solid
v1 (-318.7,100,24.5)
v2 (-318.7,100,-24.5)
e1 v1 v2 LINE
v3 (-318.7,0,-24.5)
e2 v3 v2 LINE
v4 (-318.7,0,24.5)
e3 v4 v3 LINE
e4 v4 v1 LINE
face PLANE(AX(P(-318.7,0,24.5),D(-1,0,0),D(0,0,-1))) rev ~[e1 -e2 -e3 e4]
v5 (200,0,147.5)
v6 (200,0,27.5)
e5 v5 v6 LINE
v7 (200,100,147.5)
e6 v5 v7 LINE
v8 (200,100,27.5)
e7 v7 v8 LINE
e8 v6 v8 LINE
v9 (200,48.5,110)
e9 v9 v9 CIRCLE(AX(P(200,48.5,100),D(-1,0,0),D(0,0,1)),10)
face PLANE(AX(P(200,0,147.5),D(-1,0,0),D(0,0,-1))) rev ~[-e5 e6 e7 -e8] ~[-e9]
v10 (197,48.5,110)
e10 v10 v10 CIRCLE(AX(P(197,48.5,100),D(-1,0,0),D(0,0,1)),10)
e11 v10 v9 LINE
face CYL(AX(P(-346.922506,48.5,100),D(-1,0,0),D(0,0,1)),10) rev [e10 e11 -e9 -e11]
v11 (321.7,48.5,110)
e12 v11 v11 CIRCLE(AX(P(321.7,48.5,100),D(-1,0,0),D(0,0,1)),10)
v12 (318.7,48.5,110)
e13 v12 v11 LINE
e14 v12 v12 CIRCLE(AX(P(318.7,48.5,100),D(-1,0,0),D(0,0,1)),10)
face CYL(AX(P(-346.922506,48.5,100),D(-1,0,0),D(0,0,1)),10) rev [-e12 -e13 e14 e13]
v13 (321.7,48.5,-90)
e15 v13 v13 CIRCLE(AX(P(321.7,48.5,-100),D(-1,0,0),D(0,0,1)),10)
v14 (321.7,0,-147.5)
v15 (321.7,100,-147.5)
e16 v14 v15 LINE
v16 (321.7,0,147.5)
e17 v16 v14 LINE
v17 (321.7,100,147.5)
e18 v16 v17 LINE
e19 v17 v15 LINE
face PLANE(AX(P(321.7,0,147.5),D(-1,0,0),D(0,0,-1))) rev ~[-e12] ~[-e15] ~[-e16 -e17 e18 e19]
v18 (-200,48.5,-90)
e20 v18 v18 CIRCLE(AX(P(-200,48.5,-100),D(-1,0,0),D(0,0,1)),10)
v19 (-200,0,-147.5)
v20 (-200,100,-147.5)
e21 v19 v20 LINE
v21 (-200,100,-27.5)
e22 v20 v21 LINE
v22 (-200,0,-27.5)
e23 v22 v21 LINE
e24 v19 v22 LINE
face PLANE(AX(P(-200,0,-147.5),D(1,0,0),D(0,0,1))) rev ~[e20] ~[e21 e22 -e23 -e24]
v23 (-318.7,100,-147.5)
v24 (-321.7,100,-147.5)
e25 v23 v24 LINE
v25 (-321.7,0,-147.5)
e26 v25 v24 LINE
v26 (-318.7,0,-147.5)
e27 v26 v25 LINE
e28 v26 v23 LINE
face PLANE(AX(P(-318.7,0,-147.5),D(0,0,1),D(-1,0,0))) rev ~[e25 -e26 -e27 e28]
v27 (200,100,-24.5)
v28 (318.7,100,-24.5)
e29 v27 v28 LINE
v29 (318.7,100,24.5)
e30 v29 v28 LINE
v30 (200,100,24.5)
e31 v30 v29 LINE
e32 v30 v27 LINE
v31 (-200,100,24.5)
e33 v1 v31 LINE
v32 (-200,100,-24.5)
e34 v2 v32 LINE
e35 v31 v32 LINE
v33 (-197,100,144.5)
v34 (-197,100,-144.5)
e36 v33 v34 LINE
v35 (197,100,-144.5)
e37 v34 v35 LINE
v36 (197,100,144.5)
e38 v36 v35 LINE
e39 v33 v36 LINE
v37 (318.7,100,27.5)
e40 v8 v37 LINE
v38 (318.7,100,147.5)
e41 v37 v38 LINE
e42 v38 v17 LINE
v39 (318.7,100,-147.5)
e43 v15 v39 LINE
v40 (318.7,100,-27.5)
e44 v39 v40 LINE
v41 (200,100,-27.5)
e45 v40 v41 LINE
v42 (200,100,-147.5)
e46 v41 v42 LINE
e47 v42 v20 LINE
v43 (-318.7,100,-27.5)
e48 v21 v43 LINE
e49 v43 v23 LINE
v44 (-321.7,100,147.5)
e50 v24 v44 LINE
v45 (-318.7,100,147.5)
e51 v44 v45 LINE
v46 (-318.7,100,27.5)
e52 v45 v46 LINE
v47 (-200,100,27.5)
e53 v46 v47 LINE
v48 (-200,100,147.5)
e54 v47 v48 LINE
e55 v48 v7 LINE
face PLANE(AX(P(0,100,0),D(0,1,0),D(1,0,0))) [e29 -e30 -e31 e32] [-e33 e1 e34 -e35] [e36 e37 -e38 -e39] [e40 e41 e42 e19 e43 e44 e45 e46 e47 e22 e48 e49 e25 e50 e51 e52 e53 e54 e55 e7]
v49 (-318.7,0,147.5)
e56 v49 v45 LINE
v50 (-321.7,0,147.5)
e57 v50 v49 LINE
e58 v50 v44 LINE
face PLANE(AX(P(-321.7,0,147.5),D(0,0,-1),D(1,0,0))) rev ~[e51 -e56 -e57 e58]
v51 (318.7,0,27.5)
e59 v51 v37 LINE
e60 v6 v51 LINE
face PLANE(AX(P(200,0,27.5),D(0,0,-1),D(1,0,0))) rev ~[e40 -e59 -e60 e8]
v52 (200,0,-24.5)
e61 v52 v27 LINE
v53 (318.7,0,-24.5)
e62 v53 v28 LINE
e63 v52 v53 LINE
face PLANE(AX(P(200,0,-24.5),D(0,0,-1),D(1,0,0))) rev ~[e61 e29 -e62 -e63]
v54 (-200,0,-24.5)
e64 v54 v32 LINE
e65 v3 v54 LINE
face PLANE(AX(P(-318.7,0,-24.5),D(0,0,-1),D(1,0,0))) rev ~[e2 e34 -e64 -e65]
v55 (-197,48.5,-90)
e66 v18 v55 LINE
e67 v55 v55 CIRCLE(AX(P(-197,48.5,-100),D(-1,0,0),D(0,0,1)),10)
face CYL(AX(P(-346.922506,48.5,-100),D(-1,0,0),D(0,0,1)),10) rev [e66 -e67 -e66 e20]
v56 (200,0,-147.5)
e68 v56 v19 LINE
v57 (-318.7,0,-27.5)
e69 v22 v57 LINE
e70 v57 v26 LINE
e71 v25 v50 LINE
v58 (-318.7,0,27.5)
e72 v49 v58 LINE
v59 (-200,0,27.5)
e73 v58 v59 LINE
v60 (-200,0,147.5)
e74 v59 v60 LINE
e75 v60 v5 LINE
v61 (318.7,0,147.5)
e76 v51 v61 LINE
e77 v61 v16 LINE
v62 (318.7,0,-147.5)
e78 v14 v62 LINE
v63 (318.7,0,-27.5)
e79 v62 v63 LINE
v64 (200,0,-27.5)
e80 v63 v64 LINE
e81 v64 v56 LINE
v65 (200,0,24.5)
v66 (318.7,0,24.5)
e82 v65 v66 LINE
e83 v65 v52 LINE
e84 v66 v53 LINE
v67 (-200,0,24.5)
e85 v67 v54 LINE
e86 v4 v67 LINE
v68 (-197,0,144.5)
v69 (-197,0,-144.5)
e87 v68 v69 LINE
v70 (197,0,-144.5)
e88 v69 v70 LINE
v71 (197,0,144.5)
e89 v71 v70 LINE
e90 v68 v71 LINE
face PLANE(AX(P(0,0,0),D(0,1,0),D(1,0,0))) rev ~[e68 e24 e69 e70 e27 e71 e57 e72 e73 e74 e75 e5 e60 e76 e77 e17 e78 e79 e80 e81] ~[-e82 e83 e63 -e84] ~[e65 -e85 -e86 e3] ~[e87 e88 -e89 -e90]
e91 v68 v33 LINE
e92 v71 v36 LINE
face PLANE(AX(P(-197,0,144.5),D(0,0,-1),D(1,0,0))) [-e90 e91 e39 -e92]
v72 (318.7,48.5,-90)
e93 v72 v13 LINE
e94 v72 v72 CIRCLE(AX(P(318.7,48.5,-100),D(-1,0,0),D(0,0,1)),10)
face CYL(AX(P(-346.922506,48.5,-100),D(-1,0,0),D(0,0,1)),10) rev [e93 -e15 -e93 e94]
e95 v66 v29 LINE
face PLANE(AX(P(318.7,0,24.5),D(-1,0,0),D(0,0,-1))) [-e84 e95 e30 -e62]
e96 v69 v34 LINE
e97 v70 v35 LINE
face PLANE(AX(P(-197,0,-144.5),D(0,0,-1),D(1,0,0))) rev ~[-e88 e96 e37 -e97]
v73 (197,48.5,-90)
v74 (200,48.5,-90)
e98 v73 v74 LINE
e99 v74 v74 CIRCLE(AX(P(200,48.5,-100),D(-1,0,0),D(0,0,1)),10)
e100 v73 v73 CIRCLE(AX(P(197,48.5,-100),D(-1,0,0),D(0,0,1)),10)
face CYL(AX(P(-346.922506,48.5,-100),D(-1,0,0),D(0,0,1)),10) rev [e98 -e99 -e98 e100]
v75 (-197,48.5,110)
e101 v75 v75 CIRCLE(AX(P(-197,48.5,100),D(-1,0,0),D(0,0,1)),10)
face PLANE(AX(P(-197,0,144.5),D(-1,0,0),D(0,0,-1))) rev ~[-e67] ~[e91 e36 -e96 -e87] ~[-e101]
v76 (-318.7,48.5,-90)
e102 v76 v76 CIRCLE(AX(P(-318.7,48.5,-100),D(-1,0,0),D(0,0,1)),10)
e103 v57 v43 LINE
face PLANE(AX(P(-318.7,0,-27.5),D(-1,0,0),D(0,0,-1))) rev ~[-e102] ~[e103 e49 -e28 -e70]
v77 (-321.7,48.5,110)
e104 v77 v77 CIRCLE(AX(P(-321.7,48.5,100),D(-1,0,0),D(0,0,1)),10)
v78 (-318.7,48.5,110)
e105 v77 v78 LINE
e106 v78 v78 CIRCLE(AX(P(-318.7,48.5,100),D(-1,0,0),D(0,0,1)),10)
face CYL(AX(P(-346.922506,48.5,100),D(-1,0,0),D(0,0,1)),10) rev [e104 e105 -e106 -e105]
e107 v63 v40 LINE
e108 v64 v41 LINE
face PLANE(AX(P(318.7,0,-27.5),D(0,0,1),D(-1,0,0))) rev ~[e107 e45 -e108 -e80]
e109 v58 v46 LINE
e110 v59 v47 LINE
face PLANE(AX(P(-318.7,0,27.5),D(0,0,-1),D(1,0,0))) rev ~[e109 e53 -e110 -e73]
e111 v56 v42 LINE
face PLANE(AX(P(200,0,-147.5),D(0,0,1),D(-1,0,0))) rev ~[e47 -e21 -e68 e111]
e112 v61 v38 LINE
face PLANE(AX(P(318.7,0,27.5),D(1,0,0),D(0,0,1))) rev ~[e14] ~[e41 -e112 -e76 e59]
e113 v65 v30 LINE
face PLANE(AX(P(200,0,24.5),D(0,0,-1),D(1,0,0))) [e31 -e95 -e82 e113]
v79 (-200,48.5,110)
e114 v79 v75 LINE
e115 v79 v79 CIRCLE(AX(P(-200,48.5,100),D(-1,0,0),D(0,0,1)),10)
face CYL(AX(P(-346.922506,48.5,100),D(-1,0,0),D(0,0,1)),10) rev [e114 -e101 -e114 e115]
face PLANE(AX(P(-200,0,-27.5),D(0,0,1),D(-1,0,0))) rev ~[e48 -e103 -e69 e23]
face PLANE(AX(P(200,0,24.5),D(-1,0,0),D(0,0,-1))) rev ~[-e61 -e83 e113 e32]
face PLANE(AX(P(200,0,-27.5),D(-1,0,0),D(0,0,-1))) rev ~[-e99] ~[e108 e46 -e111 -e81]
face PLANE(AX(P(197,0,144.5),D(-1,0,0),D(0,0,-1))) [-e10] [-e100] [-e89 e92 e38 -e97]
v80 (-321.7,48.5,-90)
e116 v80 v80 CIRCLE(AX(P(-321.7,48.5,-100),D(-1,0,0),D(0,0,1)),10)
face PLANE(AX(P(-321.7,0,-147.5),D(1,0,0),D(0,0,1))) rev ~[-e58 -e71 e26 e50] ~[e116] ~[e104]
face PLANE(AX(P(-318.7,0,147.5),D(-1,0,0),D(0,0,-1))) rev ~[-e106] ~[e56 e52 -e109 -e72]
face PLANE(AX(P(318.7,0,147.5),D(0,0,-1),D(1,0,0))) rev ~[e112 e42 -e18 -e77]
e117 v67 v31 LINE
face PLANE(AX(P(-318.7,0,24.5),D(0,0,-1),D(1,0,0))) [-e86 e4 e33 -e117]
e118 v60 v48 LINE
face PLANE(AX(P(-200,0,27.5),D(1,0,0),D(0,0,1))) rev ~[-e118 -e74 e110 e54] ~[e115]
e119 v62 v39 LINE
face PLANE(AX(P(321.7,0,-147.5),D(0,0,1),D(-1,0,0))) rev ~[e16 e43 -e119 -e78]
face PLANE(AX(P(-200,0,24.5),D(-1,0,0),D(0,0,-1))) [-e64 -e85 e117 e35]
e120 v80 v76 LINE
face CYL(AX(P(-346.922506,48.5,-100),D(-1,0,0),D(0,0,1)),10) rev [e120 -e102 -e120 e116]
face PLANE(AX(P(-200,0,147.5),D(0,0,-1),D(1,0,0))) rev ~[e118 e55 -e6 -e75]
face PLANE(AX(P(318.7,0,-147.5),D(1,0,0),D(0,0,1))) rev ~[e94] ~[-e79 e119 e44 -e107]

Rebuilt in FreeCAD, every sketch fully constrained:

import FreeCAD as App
import Part
import Sketcher

V = App.Vector
Q = App.Units.Quantity


def add_polygon(sketch, points):
    """Adds a closed chain of lines whose ends are joined by coincident constraints."""
    first, n = sketch.GeometryCount, len(points)
    for a, b in zip(points, points[1:] + points[:1]):
        sketch.addGeometry(Part.LineSegment(App.Vector(*a, 0), App.Vector(*b, 0)), False)
    for i in range(n):
        sketch.addConstraint(Sketcher.Constraint("Coincident", first + i, 2, first + (i + 1) % n, 1))

doc = App.newDocument("Part")
params = doc.addObject("Spreadsheet::Sheet", "Params")
for row, (alias, value) in enumerate([
    ("sketch1_width", "400 mm"),
    ("sketch1_width2", "3 mm"),
    ("sketch1_width3", "394 mm"),
    ("sketch1_height", "120 mm"),
    ("sketch1_height2", "295 mm"),
    ("pad1_length", "100 mm"),
    ("sketch2_diameter", "20 mm"),
], start=1):
    params.set(f"A{row}", alias)
    params.set(f"B{row}", "=" + value)
    params.setAlias(f"B{row}", alias)

body = doc.addObject("PartDesign::Body", "Body")

sketch1 = doc.addObject("Sketcher::SketchObject", "Sketch")
body.addObject(sketch1)
sketch1.AttachmentSupport = (doc.XZ_Plane, [""])
sketch1.MapMode = "FlatFace"
add_polygon(sketch1, [(200, -147.5), (-200, -147.5), (-200, -27.5), (-318.7, -27.5), (-318.7, -147.5), (-321.7, -147.5), (-321.7, 147.5), (-318.7, 147.5), (-318.7, 27.5), (-200, 27.5), (-200, 147.5), (200, 147.5), (200, 27.5), (318.7, 27.5), (318.7, 147.5), (321.7, 147.5), (321.7, -147.5), (318.7, -147.5), (318.7, -27.5), (200, -27.5)])
add_polygon(sketch1, [(-200, 24.5), (-318.7, 24.5), (-318.7, -24.5), (-200, -24.5)])
add_polygon(sketch1, [(197, 144.5), (-197, 144.5), (-197, -144.5), (197, -144.5)])
add_polygon(sketch1, [(318.7, 24.5), (200, 24.5), (200, -24.5), (318.7, -24.5)])
sketch1.addConstraint([
    Sketcher.Constraint("Horizontal", 0),
    Sketcher.Constraint("Vertical", 1),
    Sketcher.Constraint("Horizontal", 2),
    Sketcher.Constraint("Vertical", 3),
    Sketcher.Constraint("Horizontal", 4),
    Sketcher.Constraint("Vertical", 5),
    Sketcher.Constraint("Horizontal", 6),
    Sketcher.Constraint("Vertical", 7),
    Sketcher.Constraint("Horizontal", 8),
    Sketcher.Constraint("Vertical", 9),
    Sketcher.Constraint("Horizontal", 10),
    Sketcher.Constraint("Vertical", 11),
    Sketcher.Constraint("Horizontal", 12),
    Sketcher.Constraint("Vertical", 13),
    Sketcher.Constraint("Horizontal", 14),
    Sketcher.Constraint("Vertical", 15),
    Sketcher.Constraint("Horizontal", 16),
    Sketcher.Constraint("Vertical", 17),
    Sketcher.Constraint("Horizontal", 18),
    Sketcher.Constraint("Vertical", 19),
    Sketcher.Constraint("Horizontal", 20),
    Sketcher.Constraint("Vertical", 21),
    Sketcher.Constraint("Horizontal", 22),
    Sketcher.Constraint("Vertical", 23),
    Sketcher.Constraint("Horizontal", 24),
    Sketcher.Constraint("Vertical", 25),
    Sketcher.Constraint("Horizontal", 26),
    Sketcher.Constraint("Vertical", 27),
    Sketcher.Constraint("Horizontal", 28),
    Sketcher.Constraint("Vertical", 29),
    Sketcher.Constraint("Horizontal", 30),
    Sketcher.Constraint("Vertical", 31),
    Sketcher.Constraint("Symmetric", 0, 2, 10, 2, -1, 1),
    Sketcher.Constraint("Symmetric", 2, 2, 12, 2, -1, 1),
    Sketcher.Constraint("Symmetric", 4, 2, 14, 2, -1, 1),
    Sketcher.Constraint("Symmetric", 6, 2, 16, 2, -1, 1),
    Sketcher.Constraint("Symmetric", 8, 2, 18, 2, -1, 1),
    Sketcher.Constraint("Symmetric", 24, 2, 26, 2, -1, 1),
    Sketcher.Constraint("Symmetric", 22, 2, 28, 2, -1, 1),
    Sketcher.Constraint("Symmetric", 20, 2, 30, 2, -1, 1),
    Sketcher.Constraint("Symmetric", 8, 2, 11, 2, -2),
    Sketcher.Constraint("Symmetric", 6, 2, 13, 2, -2),
    Sketcher.Constraint("Horizontal", 0, 2, 3, 2),
    Sketcher.Constraint("Horizontal", 23, 2, 28, 2),
    Sketcher.Constraint("Vertical", 7, 2, 20, 2),
    Sketcher.Constraint("Vertical", 9, 2, 22, 2),
    Sketcher.Constraint("DistanceX", 0, 2, 0, 1, Q("400 mm")),
    Sketcher.Constraint("DistanceX", 4, 2, 4, 1, Q("3 mm")),
    Sketcher.Constraint("DistanceX", 24, 2, 24, 1, Q("394 mm")),
    Sketcher.Constraint("DistanceY", 1, 1, 1, 2, Q("120 mm")),
    Sketcher.Constraint("DistanceY", 5, 1, 5, 2, Q("295 mm")),
    Sketcher.Constraint("DistanceY", 21, 2, 21, 1, Q("49 mm")),
    Sketcher.Constraint("DistanceY", 25, 2, 25, 1, Q("289 mm")),
    Sketcher.Constraint("DistanceX", 2, 2, 2, 1, Q("118.7 mm")),
])
sketch1.setExpression("Constraints[78]", "Params.sketch1_width")
sketch1.setExpression("Constraints[79]", "Params.sketch1_width2")
sketch1.setExpression("Constraints[80]", "Params.sketch1_width3")
sketch1.setExpression("Constraints[81]", "Params.sketch1_height")
sketch1.setExpression("Constraints[82]", "Params.sketch1_height2")
pad1 = doc.addObject("PartDesign::Pad", "Pad")
body.addObject(pad1)
pad1.Profile = sketch1
pad1.setExpression("Length", "Params.pad1_length")
pad1.Reversed = True

sketch2 = doc.addObject("Sketcher::SketchObject", "Sketch001")
body.addObject(sketch2)
sketch2.AttachmentSupport = (doc.YZ_Plane, [""])
sketch2.MapMode = "FlatFace"
sketch2.AttachmentOffset = App.Placement(V(0, 0, 321.7), App.Rotation())
sketch2.addGeometry([
    Part.Circle(V(48.5, 100, 0), V(0, 0, 1), 10),
    Part.Circle(V(48.5, -100, 0), V(0, 0, 1), 10),
], False)
sketch2.addConstraint([
    Sketcher.Constraint("Equal", 0, 1),
    Sketcher.Constraint("Symmetric", 0, 3, 1, 3, -1),
    Sketcher.Constraint("Diameter", 0, Q("20 mm")),
    Sketcher.Constraint("DistanceY", -1, 1, 0, 3, Q("100 mm")),
    Sketcher.Constraint("DistanceX", -1, 1, 0, 3, Q("48.5 mm")),
])
sketch2.setExpression("Constraints[2]", "Params.sketch2_diameter")
pocket1 = doc.addObject("PartDesign::Pocket", "Pocket")
body.addObject(pocket1)
pocket1.Profile = sketch2
pocket1.Type = "ThroughAll"
pocket1.Midplane = True

doc.recompute()
